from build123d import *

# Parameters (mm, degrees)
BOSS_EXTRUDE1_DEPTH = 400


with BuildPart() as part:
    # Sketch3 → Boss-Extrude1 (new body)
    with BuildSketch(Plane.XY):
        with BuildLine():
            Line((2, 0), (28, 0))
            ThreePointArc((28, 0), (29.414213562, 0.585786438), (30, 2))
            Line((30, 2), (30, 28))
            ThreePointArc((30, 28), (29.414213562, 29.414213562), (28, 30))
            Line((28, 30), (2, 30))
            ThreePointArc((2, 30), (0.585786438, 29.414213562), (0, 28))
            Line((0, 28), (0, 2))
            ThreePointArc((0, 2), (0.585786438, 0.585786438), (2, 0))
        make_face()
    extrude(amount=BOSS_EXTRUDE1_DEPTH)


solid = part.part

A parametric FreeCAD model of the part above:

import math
import FreeCAD as App
import Part
import Sketcher

doc = App.newDocument("Part")
body = doc.addObject("PartDesign::Body", "Body")

# Sketch on XY plane
sketch1 = body.newObject("Sketcher::SketchObject", "Sketch")
sketch1.AttachmentSupport = (doc.getObject("XY_Plane"), [""])
sketch1.MapMode = "FlatFace"
sketch1.addGeometry([
    Part.LineSegment(App.Vector(2, 0, 0), App.Vector(28, 0, 0)),  # 0
    Part.ArcOfCircle(Part.Circle(App.Vector(28, 2, 0), App.Vector(0, 0, 1), 2), math.radians(-90), math.radians(0)),  # 1
    Part.LineSegment(App.Vector(30, 2, 0), App.Vector(30, 28, 0)),  # 2
    Part.ArcOfCircle(Part.Circle(App.Vector(28, 28, 0), App.Vector(0, 0, 1), 2), math.radians(0), math.radians(90)),  # 3
    Part.LineSegment(App.Vector(28, 30, 0), App.Vector(2, 30, 0)),  # 4
    Part.ArcOfCircle(Part.Circle(App.Vector(2, 28, 0), App.Vector(0, 0, 1), 2), math.radians(90), math.radians(180)),  # 5
    Part.LineSegment(App.Vector(0, 28, 0), App.Vector(0, 2, 0)),  # 6
    Part.ArcOfCircle(Part.Circle(App.Vector(2, 2, 0), App.Vector(0, 0, 1), 2), math.radians(-180), math.radians(-90)),  # 7
], False)
sketch1.addConstraint([
    Sketcher.Constraint("Tangent", 0, 2, 1, 1),
    Sketcher.Constraint("Tangent", 1, 2, 2, 1),
    Sketcher.Constraint("Tangent", 2, 2, 3, 1),
    Sketcher.Constraint("Tangent", 3, 2, 4, 1),
    Sketcher.Constraint("Tangent", 4, 2, 5, 1),
    Sketcher.Constraint("Tangent", 5, 2, 6, 1),
    Sketcher.Constraint("Tangent", 6, 2, 7, 1),
    Sketcher.Constraint("Tangent", 7, 2, 0, 1),
    Sketcher.Constraint("Horizontal", 0),
    Sketcher.Constraint("Vertical", 2),
    Sketcher.Constraint("Horizontal", 4),
    Sketcher.Constraint("Vertical", 6),
    Sketcher.Constraint("Equal", 1, 3),
    Sketcher.Constraint("Equal", 3, 5),
    Sketcher.Constraint("Equal", 5, 7),
    Sketcher.Constraint("PointOnObject", 0, 2, -1),
    Sketcher.Constraint("PointOnObject", 5, 2, -2),
    Sketcher.Constraint("Equal", 4, 2),
    Sketcher.Constraint("Radius", 1, 2.0),
    Sketcher.Constraint("DistanceX", 0, 1, 0, 2, 26.0),
])
pad1 = body.newObject("PartDesign::Pad", "Pad")
pad1.Profile = sketch1
pad1.Length = 400

doc.recompute()
